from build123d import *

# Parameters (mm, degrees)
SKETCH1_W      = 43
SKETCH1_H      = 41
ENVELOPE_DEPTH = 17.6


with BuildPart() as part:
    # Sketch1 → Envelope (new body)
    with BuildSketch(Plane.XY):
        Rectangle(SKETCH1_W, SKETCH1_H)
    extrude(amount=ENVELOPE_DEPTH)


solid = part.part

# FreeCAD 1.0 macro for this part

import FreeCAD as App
import Part
import Sketcher

V = App.Vector
Q = App.Units.Quantity

doc = App.newDocument("Part")
params = doc.addObject("Spreadsheet::Sheet", "Params")
for row, (alias, value) in enumerate([
    ("sketch1_width", "43 mm"),
    ("sketch1_height", "41 mm"),
    ("pad1_length", "17.6 mm"),
], start=1):
    params.set(f"A{row}", alias)
    params.set(f"B{row}", "=" + value)
    params.setAlias(f"B{row}", alias)

body = doc.addObject("PartDesign::Body", "Body")

# Sketch on XY plane
sketch1 = body.newObject("Sketcher::SketchObject", "Sketch")
sketch1.AttachmentSupport = (doc.getObject("XY_Plane"), [""])
sketch1.MapMode = "FlatFace"
sketch1.addGeometry(Part.LineSegment(V(-21.5, 20.5, 0), V(-21.5, -20.5, 0)), False)
sketch1.addGeometry(Part.LineSegment(V(-21.5, -20.5, 0), V(21.5, -20.5, 0)), False)
sketch1.addGeometry(Part.LineSegment(V(21.5, -20.5, 0), V(21.5, 20.5, 0)), False)
sketch1.addGeometry(Part.LineSegment(V(21.5, 20.5, 0), V(-21.5, 20.5, 0)), False)
sketch1.addConstraint(Sketcher.Constraint("Coincident", 0, 2, 1, 1))
sketch1.addConstraint(Sketcher.Constraint("Coincident", 1, 2, 2, 1))
sketch1.addConstraint(Sketcher.Constraint("Coincident", 2, 2, 3, 1))
sketch1.addConstraint(Sketcher.Constraint("Coincident", 3, 2, 0, 1))
sketch1.addConstraint(Sketcher.Constraint("Vertical", 0))
sketch1.addConstraint(Sketcher.Constraint("Horizontal", 1))
sketch1.addConstraint(Sketcher.Constraint("Vertical", 2))
sketch1.addConstraint(Sketcher.Constraint("Horizontal", 3))
sketch1.addConstraint(Sketcher.Constraint("Symmetric", 0, 2, 2, 2, -1, 1))
sketch1.addConstraint(Sketcher.Constraint("DistanceX", 1, 1, 1, 2, Q("43 mm")))
sketch1.addConstraint(Sketcher.Constraint("DistanceY", 0, 2, 0, 1, Q("41 mm")))
sketch1.setExpression("Constraints[9]", "Params.sketch1_width")
sketch1.setExpression("Constraints[10]", "Params.sketch1_height")
pad1 = body.newObject("PartDesign::Pad", "Pad")
pad1.Profile = sketch1
pad1.setExpression("Length", "Params.pad1_length")

doc.recompute()
